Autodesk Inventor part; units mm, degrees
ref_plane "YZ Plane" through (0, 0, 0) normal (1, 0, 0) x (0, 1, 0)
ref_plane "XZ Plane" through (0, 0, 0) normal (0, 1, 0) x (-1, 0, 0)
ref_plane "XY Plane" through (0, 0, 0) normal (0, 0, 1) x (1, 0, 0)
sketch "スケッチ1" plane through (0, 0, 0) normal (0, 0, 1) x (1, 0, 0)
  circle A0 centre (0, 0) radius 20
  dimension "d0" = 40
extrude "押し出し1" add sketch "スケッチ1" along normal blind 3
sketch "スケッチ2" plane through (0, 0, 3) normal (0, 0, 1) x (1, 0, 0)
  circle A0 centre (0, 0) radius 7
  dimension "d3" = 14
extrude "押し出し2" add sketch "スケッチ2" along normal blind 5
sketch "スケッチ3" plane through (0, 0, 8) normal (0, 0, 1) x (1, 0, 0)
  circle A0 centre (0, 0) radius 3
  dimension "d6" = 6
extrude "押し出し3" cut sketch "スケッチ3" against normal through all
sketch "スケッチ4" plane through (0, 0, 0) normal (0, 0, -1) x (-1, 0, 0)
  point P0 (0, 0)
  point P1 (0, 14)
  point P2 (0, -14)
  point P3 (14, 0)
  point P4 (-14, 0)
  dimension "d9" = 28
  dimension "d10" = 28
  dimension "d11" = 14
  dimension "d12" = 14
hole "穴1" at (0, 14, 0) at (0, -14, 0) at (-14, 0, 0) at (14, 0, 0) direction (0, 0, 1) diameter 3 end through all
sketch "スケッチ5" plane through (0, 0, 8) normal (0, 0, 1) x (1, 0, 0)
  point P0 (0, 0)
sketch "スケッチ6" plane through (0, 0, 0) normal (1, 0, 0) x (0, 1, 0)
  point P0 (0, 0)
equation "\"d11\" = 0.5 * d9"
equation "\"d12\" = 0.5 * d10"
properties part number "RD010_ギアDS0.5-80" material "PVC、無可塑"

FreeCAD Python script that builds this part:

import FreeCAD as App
import Part
import Sketcher

V = App.Vector

doc = App.newDocument("Part")
body = doc.addObject("PartDesign::Body", "Body")

sketch1 = body.newObject("Sketcher::SketchObject", "Sketch")
sketch1.AttachmentSupport = (doc.getObject("XY_Plane"), [""])
sketch1.MapMode = "FlatFace"
sketch1.addGeometry(Part.Circle(V(0, 0, 0), V(0, 0, 1), 20), False)
sketch1.addConstraint([
    Sketcher.Constraint("Coincident", 0, 3, -1, 1),
    Sketcher.Constraint("Diameter", 0, 40.0),
])
pad1 = body.newObject("PartDesign::Pad", "Pad")
pad1.Profile = sketch1
pad1.Length = 3

sketch2 = body.newObject("Sketcher::SketchObject", "Sketch001")
sketch2.AttachmentSupport = (doc.getObject("XY_Plane"), [""])
sketch2.MapMode = "FlatFace"
sketch2.AttachmentOffset = App.Placement(V(0, 0, 3), App.Rotation())
sketch2.addGeometry(Part.Circle(V(0, 0, 0), V(0, 0, 1), 7), False)
sketch2.addConstraint([
    Sketcher.Constraint("Coincident", 0, 3, -1, 1),
    Sketcher.Constraint("Diameter", 0, 14.0),
])
pad2 = body.newObject("PartDesign::Pad", "Pad001")
pad2.Profile = sketch2
pad2.Length = 5

sketch3 = body.newObject("Sketcher::SketchObject", "Sketch002")
sketch3.AttachmentSupport = (doc.getObject("XY_Plane"), [""])
sketch3.MapMode = "FlatFace"
sketch3.AttachmentOffset = App.Placement(V(0, 0, 8), App.Rotation())
sketch3.addGeometry(Part.Circle(V(0, 0, 0), V(0, 0, 1), 3), False)
sketch3.addConstraint([
    Sketcher.Constraint("Coincident", 0, 3, -1, 1),
    Sketcher.Constraint("Diameter", 0, 6.0),
])
pocket1 = body.newObject("PartDesign::Pocket", "Pocket")
pocket1.Profile = sketch3
pocket1.Type = "ThroughAll"

sketch4 = body.newObject("Sketcher::SketchObject", "Sketch003")
sketch4.AttachmentSupport = (doc.getObject("XY_Plane"), [""])
sketch4.MapMode = "FlatFace"
sketch4.addGeometry([
    Part.Circle(V(0, 14, 0), V(0, 0, 1), 1.5),
    Part.Circle(V(0, -14, 0), V(0, 0, 1), 1.5),
    Part.Circle(V(-14, 0, 0), V(0, 0, 1), 1.5),
    Part.Circle(V(14, 0, 0), V(0, 0, 1), 1.5),
], False)
sketch4.addConstraint([
    Sketcher.Constraint("Equal", 0, 1),
    Sketcher.Constraint("Equal", 1, 2),
    Sketcher.Constraint("Equal", 2, 3),
    Sketcher.Constraint("Symmetric", 0, 3, 1, 3, -1, 1),
    Sketcher.Constraint("Symmetric", 2, 3, 3, 3, -1, 1),
    Sketcher.Constraint("PointOnObject", 0, 3, -2),
    Sketcher.Constraint("PointOnObject", 2, 3, -1),
    Sketcher.Constraint("Diameter", 0, 3.0),
    Sketcher.Constraint("DistanceY", -1, 1, 0, 3, 14.0),
    Sketcher.Constraint("DistanceX", 2, 3, -1, 1, 14.0),
])
doc.recompute()
hole = body.newObject("PartDesign::Hole", "Hole")
hole.Profile = sketch4
hole.ThreadType = "None"
hole.Diameter = 3
hole.DepthType = "ThroughAll"
hole.Reversed = True

doc.recompute()
